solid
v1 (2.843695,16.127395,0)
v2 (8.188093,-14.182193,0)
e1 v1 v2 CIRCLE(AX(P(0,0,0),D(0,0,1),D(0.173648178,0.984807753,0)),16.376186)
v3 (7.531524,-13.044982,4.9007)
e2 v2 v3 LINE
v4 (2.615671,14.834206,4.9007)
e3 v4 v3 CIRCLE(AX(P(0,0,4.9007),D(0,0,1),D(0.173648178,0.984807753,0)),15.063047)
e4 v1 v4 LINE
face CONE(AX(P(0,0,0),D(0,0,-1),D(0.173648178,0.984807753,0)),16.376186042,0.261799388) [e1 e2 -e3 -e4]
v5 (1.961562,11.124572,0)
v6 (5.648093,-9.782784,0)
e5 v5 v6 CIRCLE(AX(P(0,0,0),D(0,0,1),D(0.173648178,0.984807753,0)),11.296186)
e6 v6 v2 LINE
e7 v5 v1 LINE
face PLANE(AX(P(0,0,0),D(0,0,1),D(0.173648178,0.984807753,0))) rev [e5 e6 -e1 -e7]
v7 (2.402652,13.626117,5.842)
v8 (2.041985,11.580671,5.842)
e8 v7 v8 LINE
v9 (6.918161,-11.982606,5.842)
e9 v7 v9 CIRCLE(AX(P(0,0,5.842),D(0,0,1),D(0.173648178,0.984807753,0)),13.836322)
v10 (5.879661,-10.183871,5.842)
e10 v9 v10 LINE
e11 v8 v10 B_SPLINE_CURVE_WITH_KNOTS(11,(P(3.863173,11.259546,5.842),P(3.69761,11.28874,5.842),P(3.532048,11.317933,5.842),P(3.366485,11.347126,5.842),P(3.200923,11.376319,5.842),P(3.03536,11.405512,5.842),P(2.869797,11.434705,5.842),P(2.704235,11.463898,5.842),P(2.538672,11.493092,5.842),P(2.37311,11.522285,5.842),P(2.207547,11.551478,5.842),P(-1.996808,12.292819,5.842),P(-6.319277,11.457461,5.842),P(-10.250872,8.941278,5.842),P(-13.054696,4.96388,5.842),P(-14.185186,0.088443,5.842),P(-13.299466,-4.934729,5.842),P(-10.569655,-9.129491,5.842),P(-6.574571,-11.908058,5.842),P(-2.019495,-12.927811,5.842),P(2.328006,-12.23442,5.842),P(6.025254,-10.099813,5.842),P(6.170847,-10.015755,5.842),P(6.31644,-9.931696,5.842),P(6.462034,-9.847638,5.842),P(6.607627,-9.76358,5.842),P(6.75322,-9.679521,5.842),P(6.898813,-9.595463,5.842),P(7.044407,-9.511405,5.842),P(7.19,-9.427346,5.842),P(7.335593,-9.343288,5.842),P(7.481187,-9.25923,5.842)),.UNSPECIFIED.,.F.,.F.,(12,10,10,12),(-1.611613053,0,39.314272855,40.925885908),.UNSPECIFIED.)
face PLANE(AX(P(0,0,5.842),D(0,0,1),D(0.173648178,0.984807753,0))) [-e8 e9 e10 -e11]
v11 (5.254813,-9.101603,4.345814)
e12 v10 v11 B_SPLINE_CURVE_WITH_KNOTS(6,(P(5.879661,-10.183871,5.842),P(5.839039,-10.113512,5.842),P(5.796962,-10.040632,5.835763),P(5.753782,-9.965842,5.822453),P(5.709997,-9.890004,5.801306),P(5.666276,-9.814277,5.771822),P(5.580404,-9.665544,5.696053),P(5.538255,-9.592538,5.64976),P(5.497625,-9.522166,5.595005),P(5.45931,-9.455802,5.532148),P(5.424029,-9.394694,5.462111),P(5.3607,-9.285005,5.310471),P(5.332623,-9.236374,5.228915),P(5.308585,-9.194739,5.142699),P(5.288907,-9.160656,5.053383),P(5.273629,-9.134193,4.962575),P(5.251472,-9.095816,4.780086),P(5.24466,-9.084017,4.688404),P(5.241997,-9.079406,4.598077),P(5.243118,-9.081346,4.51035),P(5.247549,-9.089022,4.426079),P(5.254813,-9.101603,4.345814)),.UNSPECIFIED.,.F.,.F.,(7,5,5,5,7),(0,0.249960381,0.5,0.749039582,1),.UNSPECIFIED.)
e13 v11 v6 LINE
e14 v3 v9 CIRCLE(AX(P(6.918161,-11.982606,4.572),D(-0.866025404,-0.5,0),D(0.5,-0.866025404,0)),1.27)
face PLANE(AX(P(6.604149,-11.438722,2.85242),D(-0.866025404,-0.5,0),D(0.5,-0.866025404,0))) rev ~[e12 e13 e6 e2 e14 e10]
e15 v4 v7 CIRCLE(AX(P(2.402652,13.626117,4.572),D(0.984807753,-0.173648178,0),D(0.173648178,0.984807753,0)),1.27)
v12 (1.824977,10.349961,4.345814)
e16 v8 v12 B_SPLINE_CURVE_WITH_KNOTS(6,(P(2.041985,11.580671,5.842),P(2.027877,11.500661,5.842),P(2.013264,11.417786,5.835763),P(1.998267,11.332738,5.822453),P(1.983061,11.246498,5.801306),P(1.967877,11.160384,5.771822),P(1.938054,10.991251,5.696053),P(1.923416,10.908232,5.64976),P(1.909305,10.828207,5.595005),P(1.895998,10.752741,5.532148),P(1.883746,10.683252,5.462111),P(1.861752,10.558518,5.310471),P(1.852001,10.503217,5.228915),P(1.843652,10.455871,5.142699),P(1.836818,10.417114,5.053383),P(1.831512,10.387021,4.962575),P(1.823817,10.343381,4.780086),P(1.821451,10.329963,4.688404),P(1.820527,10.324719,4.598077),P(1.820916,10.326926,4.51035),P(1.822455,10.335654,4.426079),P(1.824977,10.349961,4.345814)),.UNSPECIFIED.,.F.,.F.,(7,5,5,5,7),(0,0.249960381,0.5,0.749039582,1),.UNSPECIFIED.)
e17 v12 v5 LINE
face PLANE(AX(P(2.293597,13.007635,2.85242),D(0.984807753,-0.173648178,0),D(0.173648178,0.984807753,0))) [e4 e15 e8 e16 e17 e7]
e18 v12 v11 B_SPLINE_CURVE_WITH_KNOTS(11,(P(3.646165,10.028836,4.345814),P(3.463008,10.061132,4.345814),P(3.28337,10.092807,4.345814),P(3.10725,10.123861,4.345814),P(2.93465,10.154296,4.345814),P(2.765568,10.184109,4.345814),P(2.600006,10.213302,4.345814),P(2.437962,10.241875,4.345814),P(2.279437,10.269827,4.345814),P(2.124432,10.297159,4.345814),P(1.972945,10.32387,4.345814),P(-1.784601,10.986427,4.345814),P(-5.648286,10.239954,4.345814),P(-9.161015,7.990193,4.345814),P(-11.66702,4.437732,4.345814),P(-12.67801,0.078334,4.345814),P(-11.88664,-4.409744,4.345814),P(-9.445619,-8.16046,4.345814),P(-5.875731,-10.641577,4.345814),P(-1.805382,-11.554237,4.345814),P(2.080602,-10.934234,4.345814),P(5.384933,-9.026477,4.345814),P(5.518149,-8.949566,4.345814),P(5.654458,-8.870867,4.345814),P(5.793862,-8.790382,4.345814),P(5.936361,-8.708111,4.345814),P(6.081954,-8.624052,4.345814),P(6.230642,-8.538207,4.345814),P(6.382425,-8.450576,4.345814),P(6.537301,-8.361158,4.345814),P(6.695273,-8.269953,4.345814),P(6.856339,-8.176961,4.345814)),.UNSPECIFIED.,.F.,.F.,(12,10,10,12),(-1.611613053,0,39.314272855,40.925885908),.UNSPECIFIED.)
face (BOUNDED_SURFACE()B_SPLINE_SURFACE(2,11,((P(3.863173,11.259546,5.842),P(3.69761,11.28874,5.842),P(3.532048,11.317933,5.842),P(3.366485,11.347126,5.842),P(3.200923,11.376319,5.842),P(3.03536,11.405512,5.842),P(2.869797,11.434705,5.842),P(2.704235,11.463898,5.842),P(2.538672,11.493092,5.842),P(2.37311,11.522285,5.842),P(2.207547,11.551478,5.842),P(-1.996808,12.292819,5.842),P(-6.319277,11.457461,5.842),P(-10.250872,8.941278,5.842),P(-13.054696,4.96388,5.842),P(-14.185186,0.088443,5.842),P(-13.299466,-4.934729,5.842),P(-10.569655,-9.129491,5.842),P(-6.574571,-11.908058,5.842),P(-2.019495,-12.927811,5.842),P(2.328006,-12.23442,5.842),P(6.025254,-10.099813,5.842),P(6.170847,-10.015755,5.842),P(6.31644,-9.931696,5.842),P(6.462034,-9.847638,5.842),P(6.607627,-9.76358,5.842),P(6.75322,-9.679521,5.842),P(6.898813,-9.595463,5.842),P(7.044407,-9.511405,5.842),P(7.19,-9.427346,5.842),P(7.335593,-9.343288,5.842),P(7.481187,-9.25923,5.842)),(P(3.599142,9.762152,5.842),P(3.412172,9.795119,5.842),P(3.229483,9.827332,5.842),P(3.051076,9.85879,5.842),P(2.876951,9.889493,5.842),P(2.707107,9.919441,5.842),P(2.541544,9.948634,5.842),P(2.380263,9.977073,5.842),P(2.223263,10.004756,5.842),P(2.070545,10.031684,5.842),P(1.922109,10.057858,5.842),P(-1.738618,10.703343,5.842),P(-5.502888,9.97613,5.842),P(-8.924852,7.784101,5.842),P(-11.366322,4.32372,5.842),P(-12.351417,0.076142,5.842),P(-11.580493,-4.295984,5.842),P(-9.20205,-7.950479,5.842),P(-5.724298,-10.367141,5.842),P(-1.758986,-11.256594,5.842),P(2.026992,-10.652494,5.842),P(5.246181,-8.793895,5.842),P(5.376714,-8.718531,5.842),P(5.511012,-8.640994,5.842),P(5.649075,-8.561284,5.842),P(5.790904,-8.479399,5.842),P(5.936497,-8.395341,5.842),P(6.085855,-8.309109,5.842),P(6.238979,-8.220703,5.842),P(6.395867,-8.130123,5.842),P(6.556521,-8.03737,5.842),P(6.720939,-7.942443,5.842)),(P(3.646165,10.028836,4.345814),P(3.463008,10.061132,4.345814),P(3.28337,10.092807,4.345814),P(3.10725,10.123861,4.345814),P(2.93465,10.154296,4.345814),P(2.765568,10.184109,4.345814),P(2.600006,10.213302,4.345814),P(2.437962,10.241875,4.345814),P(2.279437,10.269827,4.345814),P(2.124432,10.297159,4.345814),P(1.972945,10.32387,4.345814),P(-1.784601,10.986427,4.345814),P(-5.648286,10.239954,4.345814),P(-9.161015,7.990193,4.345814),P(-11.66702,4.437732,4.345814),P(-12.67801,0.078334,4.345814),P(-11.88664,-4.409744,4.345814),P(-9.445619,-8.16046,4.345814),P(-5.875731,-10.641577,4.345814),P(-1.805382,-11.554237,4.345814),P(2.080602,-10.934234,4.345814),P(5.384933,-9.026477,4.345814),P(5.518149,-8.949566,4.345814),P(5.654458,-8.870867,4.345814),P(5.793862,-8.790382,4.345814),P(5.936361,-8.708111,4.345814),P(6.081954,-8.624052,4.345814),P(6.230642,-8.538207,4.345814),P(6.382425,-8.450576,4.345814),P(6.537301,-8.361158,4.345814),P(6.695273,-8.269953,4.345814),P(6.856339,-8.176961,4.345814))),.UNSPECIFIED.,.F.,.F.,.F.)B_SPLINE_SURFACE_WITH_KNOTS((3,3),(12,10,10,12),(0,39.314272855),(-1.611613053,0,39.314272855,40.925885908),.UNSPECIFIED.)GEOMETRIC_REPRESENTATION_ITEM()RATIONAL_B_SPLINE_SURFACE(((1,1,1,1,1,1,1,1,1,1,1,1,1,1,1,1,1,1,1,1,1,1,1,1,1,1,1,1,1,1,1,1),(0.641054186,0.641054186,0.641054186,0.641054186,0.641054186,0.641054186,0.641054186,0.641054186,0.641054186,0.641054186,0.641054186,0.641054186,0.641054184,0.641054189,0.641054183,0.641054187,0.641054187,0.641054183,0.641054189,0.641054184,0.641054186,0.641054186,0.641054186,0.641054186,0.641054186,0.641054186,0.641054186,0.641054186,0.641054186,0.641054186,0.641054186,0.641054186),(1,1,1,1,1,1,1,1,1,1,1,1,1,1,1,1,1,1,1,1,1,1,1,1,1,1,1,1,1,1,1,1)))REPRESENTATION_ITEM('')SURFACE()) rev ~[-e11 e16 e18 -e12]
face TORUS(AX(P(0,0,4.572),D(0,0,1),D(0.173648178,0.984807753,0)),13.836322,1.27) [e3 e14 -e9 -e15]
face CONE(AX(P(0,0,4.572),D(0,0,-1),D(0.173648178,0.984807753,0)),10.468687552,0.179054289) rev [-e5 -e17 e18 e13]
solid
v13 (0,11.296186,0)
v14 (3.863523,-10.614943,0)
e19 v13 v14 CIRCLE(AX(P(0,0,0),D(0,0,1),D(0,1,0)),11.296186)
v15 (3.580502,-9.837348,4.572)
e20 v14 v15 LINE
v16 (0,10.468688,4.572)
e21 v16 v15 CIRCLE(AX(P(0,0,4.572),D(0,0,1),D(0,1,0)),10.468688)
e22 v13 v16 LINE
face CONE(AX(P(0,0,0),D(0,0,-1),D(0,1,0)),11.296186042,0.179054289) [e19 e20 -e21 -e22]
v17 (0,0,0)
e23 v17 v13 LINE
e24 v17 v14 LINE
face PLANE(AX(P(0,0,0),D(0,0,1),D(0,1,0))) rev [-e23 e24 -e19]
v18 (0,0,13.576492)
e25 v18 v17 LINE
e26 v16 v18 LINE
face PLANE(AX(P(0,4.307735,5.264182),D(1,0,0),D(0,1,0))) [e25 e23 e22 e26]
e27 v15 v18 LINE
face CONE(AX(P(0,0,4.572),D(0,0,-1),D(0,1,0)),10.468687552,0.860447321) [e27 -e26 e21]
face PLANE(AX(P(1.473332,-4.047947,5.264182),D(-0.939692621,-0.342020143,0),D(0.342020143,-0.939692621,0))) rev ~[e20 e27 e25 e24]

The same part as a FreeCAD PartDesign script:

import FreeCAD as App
import Part
import Sketcher
from FreeCAD import Vector
Q = App.Units.Quantity


def edges_at(feature, points):
    """Names of the edges that pass closest to the given points."""
    edges = feature.Shape.Edges
    near = lambda p: min(range(len(edges)), key=lambda i: edges[i].distToShape(Part.Vertex(*p))[0])
    return sorted({f"Edge{near(p) + 1}" for p in points})


def add_polygon(sketch, points):
    """Adds a closed chain of lines whose ends are joined by coincident constraints."""
    first, n = sketch.GeometryCount, len(points)
    for a, b in zip(points, points[1:] + points[:1]):
        sketch.addGeometry(Part.LineSegment(App.Vector(*a, 0), App.Vector(*b, 0)), False)
    for i in range(n):
        sketch.addConstraint(Sketcher.Constraint("Coincident", first + i, 2, first + (i + 1) % n, 1))

doc = App.newDocument("Part")
params = doc.addObject("Spreadsheet::Sheet", "Params")
for row, (alias, value) in enumerate([
    ("revolution_angle", "200 deg"),
    ("sketch2_width", "0.2 in"),
    ("sketch2_width2", "0.18 in"),
    ("revolution2_angle", "220 deg"),
    ("fillet_radius", "0.05 in"),
], start=1):
    params.set(f"A{row}", alias)
    params.set(f"B{row}", "=" + value)
    params.setAlias(f"B{row}", alias)

body = doc.addObject("PartDesign::Body", "Body")

# Sketch on YZ plane
sketch1 = body.newObject("Sketcher::SketchObject", "Sketch")
sketch1.AttachmentSupport = (doc.getObject("YZ_Plane"), [""])
sketch1.MapMode = "FlatFace"
add_polygon(sketch1, [(0, 13.6), (0, 0), (11.3, 0), (10.5, 4.6)])  # lines 0-3
sketch1.addConstraint(Sketcher.Constraint("Vertical", 0))
sketch1.addConstraint(Sketcher.Constraint("Horizontal", 1))
sketch1.addConstraint(Sketcher.Constraint("Coincident", 0, 2, -1, 1))
sketch1.addConstraint(Sketcher.Constraint("Angle", 3, Q("139.3 deg")))
sketch1.addConstraint(Sketcher.Constraint("DistanceY", -1, 1, 2, 2, Q("0.18 in")))
sketch1.addConstraint(Sketcher.Constraint("DistanceY", 0, 2, 0, 1, 13.576492))
sketch1.addConstraint(Sketcher.Constraint("DistanceX", 2, 2, 1, 2, 0.827498))
revolution = body.newObject("PartDesign::Revolution", "Revolution")
revolution.Profile = sketch1
revolution.ReferenceAxis = (sketch1, ["V_Axis"])
revolution.setExpression("Angle", "Params.revolution_angle")
body2 = doc.addObject("PartDesign::Body", "Body001")

# Sketch on an angled plane
sketch2 = body2.newObject("Sketcher::SketchObject", "Sketch001")
sketch2.Placement = App.Placement(Vector(0, 0, 0), App.Rotation(Vector(0.173648178, 0.984807753, 0), Vector(0, 0, 1), Vector(0.984807753, -0.173648178, 0), "ZXY"))
add_polygon(sketch2, [(10.5, 4.6), (11.3, 0), (16.4, 0), (14.8, 5.8), (10.2, 5.8)])  # lines 0-4
sketch2.addConstraint(Sketcher.Constraint("Horizontal", 1))
sketch2.addConstraint(Sketcher.Constraint("Horizontal", 3))
sketch2.addConstraint(Sketcher.Constraint("PointOnObject", 0, 2, -1))
sketch2.addConstraint(Sketcher.Constraint("Parallel", 0, 4))
sketch2.addConstraint(Sketcher.Constraint("DistanceX", 1, 1, 1, 2, Q("0.2 in")))
sketch2.addConstraint(Sketcher.Constraint("Angle", 2, Q("105 deg")))
sketch2.addConstraint(Sketcher.Constraint("DistanceX", 3, 2, 3, 1, Q("0.18 in")))
sketch2.addConstraint(Sketcher.Constraint("DistanceY", -1, 1, 2, 2, Q("0.23 in")))
sketch2.addConstraint(Sketcher.Constraint("DistanceY", -1, 1, 4, 2, Q("0.18 in")))
sketch2.addConstraint(Sketcher.Constraint("DistanceX", -1, 1, 0, 2, 11.296186))
sketch2.setExpression("Constraints[9]", "Params.sketch2_width")
sketch2.setExpression("Constraints[11]", "Params.sketch2_width2")
revolution2 = body2.newObject("PartDesign::Revolution", "Revolution001")
revolution2.Profile = sketch2
revolution2.ReferenceAxis = (sketch2, ["V_Axis"])
revolution2.setExpression("Angle", "Params.revolution2_angle")
doc.recompute()

fillet = body2.newObject("PartDesign::Fillet", "Fillet")
fillet.Base = (revolution2, edges_at(revolution2, [(-10.083, -1.778, 5.842), (-14.586, -2.572, 5.842)]))
fillet.setExpression("Radius", "Params.fillet_radius")

doc.recompute()
